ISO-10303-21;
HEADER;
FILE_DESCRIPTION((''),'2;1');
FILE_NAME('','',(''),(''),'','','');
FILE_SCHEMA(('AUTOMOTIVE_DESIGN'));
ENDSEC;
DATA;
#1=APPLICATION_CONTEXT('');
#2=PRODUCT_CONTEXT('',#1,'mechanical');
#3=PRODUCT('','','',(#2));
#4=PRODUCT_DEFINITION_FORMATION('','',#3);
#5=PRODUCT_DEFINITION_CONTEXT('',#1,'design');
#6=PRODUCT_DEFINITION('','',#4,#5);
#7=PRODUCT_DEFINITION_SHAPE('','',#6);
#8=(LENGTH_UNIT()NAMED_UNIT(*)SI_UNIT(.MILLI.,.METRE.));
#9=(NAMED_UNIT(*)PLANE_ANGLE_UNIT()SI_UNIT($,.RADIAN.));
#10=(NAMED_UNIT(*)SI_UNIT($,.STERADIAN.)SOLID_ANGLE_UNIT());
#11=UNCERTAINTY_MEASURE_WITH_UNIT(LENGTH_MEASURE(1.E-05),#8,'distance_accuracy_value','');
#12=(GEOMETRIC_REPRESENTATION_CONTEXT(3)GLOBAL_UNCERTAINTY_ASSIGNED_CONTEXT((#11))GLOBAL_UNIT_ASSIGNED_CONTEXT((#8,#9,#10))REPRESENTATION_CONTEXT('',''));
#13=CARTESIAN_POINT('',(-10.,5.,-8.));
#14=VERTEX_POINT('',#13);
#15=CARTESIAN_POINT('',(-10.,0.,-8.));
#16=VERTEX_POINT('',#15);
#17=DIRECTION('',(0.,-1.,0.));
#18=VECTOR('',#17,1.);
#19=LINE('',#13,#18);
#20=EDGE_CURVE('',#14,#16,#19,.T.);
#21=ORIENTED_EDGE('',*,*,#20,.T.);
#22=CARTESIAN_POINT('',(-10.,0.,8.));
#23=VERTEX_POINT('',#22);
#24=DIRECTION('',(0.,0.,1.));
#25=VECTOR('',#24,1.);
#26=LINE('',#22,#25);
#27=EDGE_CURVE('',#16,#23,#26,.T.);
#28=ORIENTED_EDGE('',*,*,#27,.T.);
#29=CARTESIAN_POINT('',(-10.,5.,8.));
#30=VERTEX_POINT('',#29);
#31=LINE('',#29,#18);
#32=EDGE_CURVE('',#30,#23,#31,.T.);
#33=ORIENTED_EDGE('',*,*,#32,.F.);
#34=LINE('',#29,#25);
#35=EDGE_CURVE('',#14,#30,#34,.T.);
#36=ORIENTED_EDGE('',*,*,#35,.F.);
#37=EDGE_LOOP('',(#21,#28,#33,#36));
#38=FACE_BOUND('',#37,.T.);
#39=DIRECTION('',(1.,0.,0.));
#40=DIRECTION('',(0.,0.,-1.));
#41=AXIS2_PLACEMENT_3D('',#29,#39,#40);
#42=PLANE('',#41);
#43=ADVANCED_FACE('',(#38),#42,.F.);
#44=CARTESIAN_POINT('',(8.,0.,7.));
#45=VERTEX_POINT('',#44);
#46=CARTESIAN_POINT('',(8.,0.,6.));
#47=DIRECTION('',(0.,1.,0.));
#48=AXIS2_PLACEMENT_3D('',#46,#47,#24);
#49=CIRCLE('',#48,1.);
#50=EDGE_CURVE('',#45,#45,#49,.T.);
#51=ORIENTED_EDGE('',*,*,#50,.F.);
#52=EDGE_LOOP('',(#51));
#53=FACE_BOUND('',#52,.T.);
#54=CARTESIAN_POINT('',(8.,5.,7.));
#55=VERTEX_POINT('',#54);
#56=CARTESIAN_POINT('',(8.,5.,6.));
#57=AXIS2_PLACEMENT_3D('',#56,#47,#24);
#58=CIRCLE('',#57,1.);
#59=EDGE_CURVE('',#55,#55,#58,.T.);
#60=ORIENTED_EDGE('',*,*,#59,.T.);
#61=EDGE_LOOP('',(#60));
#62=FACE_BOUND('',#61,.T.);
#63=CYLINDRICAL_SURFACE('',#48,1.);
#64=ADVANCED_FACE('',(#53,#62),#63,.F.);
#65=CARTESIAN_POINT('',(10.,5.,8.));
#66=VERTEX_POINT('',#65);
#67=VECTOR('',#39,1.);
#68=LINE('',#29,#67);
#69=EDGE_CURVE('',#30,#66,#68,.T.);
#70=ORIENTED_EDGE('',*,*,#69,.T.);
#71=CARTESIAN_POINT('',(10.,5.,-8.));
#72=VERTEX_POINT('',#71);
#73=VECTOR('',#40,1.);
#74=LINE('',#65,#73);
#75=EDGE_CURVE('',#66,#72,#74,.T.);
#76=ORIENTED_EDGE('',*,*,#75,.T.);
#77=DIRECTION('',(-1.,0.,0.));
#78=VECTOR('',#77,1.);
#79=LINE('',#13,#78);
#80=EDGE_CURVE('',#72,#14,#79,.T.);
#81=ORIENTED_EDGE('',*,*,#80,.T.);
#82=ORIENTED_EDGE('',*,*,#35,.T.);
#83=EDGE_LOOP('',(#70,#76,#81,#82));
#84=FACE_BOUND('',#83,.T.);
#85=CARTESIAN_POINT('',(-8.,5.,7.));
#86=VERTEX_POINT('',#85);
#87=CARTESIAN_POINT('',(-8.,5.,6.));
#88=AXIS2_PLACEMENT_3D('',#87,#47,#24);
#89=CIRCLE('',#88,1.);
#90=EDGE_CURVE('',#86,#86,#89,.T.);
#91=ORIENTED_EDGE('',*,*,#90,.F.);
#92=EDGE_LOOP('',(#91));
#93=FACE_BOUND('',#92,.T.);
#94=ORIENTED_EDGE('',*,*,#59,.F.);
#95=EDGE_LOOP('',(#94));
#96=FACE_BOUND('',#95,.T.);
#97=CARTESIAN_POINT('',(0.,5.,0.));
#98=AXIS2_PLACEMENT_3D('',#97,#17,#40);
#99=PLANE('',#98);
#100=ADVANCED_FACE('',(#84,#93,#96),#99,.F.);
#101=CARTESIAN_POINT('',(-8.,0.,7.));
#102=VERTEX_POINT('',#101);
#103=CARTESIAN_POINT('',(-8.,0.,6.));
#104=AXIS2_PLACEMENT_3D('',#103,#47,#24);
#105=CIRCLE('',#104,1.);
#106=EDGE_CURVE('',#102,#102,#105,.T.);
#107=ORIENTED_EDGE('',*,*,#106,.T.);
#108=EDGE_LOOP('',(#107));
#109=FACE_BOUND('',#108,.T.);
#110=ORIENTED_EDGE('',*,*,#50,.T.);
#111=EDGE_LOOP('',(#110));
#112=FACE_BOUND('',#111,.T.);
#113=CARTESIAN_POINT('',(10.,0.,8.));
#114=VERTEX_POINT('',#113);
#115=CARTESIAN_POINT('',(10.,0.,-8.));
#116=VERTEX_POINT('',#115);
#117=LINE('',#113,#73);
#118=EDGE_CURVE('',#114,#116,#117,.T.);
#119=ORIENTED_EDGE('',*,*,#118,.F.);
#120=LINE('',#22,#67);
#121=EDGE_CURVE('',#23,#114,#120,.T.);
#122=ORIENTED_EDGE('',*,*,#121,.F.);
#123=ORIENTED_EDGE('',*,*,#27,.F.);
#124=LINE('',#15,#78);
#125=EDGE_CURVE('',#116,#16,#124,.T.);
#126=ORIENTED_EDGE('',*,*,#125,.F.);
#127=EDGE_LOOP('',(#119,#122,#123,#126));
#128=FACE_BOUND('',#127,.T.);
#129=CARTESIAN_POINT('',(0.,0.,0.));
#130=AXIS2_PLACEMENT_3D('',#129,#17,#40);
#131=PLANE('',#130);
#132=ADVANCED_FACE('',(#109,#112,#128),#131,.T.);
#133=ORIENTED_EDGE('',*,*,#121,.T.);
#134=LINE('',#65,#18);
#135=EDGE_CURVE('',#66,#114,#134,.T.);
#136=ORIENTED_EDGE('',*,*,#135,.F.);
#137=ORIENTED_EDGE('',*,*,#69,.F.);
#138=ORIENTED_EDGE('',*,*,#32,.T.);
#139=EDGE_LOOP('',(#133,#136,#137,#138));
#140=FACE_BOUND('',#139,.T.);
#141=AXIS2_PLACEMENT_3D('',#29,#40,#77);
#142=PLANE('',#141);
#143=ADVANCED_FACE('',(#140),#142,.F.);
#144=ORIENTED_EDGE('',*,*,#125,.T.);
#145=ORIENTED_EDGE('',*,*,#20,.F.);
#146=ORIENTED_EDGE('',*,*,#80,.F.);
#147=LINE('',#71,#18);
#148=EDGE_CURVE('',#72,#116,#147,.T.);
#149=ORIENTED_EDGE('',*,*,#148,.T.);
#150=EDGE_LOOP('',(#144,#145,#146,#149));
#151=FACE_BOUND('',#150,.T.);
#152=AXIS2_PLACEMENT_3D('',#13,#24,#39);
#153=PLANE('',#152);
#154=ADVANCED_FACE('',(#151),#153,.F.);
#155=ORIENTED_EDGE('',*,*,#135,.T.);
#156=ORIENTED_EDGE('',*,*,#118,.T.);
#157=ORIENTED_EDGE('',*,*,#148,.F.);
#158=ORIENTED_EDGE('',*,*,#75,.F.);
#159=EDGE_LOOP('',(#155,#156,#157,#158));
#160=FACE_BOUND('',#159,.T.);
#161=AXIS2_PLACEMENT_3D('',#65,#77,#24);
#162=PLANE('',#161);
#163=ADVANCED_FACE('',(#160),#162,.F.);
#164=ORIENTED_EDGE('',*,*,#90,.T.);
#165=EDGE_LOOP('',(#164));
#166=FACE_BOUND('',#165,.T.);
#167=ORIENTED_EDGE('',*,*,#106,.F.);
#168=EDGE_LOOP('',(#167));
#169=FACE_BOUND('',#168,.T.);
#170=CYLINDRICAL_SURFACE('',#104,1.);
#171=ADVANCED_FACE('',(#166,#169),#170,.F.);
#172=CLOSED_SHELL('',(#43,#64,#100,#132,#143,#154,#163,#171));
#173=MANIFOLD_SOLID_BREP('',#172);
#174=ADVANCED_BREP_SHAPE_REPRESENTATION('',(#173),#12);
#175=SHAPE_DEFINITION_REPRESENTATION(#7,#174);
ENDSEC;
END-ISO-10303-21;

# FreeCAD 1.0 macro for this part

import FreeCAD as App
import Part
import Sketcher

V = App.Vector


def add_polygon(sketch, points):
    """Adds a closed chain of lines whose ends are joined by coincident constraints."""
    first, n = sketch.GeometryCount, len(points)
    for a, b in zip(points, points[1:] + points[:1]):
        sketch.addGeometry(Part.LineSegment(App.Vector(*a, 0), App.Vector(*b, 0)), False)
    for i in range(n):
        sketch.addConstraint(Sketcher.Constraint("Coincident", first + i, 2, first + (i + 1) % n, 1))

doc = App.newDocument("Part")
body = doc.addObject("PartDesign::Body", "Body")

# Sketch on XZ plane
sketch1 = body.newObject("Sketcher::SketchObject", "Sketch")
sketch1.AttachmentSupport = (doc.getObject("XZ_Plane"), [""])
sketch1.MapMode = "FlatFace"
add_polygon(sketch1, [(-10, -8), (-10, 8), (10, 8), (10, -8)])  # lines 0-3
sketch1.addConstraint([
    Sketcher.Constraint("Vertical", 0),
    Sketcher.Constraint("Horizontal", 1),
    Sketcher.Constraint("Vertical", 2),
    Sketcher.Constraint("Horizontal", 3),
    Sketcher.Constraint("Symmetric", 0, 2, 2, 2, -1, 1),
    Sketcher.Constraint("DistanceX", 1, 1, 1, 2, 20.0),
    Sketcher.Constraint("DistanceY", 0, 1, 0, 2, 16.0),
])
pad1 = body.newObject("PartDesign::Pad", "Pad")
pad1.Profile = sketch1
pad1.Length = 5
pad1.Reversed = True

# Sketch on XZ plane
sketch2 = body.newObject("Sketcher::SketchObject", "Sketch001")
sketch2.AttachmentSupport = (doc.getObject("XZ_Plane"), [""])
sketch2.MapMode = "FlatFace"
sketch2.AttachmentOffset = App.Placement(V(0, 0, -5), App.Rotation())
sketch2.addGeometry([
    Part.Circle(V(-8, 6, 0), V(0, 0, 1), 1),
    Part.Circle(V(8, 6, 0), V(0, 0, 1), 1),
], False)
sketch2.addConstraint([
    Sketcher.Constraint("Equal", 0, 1),
    Sketcher.Constraint("Symmetric", 0, 3, 1, 3, -2),
    Sketcher.Constraint("Diameter", 0, 2.0),
    Sketcher.Constraint("DistanceX", 0, 3, -1, 1, 8.0),
    Sketcher.Constraint("DistanceY", -1, 1, 0, 3, 6.0),
])
pocket1 = body.newObject("PartDesign::Pocket", "Pocket")
pocket1.Profile = sketch2
pocket1.Length = 5
pocket1.Reversed = True

doc.recompute()
